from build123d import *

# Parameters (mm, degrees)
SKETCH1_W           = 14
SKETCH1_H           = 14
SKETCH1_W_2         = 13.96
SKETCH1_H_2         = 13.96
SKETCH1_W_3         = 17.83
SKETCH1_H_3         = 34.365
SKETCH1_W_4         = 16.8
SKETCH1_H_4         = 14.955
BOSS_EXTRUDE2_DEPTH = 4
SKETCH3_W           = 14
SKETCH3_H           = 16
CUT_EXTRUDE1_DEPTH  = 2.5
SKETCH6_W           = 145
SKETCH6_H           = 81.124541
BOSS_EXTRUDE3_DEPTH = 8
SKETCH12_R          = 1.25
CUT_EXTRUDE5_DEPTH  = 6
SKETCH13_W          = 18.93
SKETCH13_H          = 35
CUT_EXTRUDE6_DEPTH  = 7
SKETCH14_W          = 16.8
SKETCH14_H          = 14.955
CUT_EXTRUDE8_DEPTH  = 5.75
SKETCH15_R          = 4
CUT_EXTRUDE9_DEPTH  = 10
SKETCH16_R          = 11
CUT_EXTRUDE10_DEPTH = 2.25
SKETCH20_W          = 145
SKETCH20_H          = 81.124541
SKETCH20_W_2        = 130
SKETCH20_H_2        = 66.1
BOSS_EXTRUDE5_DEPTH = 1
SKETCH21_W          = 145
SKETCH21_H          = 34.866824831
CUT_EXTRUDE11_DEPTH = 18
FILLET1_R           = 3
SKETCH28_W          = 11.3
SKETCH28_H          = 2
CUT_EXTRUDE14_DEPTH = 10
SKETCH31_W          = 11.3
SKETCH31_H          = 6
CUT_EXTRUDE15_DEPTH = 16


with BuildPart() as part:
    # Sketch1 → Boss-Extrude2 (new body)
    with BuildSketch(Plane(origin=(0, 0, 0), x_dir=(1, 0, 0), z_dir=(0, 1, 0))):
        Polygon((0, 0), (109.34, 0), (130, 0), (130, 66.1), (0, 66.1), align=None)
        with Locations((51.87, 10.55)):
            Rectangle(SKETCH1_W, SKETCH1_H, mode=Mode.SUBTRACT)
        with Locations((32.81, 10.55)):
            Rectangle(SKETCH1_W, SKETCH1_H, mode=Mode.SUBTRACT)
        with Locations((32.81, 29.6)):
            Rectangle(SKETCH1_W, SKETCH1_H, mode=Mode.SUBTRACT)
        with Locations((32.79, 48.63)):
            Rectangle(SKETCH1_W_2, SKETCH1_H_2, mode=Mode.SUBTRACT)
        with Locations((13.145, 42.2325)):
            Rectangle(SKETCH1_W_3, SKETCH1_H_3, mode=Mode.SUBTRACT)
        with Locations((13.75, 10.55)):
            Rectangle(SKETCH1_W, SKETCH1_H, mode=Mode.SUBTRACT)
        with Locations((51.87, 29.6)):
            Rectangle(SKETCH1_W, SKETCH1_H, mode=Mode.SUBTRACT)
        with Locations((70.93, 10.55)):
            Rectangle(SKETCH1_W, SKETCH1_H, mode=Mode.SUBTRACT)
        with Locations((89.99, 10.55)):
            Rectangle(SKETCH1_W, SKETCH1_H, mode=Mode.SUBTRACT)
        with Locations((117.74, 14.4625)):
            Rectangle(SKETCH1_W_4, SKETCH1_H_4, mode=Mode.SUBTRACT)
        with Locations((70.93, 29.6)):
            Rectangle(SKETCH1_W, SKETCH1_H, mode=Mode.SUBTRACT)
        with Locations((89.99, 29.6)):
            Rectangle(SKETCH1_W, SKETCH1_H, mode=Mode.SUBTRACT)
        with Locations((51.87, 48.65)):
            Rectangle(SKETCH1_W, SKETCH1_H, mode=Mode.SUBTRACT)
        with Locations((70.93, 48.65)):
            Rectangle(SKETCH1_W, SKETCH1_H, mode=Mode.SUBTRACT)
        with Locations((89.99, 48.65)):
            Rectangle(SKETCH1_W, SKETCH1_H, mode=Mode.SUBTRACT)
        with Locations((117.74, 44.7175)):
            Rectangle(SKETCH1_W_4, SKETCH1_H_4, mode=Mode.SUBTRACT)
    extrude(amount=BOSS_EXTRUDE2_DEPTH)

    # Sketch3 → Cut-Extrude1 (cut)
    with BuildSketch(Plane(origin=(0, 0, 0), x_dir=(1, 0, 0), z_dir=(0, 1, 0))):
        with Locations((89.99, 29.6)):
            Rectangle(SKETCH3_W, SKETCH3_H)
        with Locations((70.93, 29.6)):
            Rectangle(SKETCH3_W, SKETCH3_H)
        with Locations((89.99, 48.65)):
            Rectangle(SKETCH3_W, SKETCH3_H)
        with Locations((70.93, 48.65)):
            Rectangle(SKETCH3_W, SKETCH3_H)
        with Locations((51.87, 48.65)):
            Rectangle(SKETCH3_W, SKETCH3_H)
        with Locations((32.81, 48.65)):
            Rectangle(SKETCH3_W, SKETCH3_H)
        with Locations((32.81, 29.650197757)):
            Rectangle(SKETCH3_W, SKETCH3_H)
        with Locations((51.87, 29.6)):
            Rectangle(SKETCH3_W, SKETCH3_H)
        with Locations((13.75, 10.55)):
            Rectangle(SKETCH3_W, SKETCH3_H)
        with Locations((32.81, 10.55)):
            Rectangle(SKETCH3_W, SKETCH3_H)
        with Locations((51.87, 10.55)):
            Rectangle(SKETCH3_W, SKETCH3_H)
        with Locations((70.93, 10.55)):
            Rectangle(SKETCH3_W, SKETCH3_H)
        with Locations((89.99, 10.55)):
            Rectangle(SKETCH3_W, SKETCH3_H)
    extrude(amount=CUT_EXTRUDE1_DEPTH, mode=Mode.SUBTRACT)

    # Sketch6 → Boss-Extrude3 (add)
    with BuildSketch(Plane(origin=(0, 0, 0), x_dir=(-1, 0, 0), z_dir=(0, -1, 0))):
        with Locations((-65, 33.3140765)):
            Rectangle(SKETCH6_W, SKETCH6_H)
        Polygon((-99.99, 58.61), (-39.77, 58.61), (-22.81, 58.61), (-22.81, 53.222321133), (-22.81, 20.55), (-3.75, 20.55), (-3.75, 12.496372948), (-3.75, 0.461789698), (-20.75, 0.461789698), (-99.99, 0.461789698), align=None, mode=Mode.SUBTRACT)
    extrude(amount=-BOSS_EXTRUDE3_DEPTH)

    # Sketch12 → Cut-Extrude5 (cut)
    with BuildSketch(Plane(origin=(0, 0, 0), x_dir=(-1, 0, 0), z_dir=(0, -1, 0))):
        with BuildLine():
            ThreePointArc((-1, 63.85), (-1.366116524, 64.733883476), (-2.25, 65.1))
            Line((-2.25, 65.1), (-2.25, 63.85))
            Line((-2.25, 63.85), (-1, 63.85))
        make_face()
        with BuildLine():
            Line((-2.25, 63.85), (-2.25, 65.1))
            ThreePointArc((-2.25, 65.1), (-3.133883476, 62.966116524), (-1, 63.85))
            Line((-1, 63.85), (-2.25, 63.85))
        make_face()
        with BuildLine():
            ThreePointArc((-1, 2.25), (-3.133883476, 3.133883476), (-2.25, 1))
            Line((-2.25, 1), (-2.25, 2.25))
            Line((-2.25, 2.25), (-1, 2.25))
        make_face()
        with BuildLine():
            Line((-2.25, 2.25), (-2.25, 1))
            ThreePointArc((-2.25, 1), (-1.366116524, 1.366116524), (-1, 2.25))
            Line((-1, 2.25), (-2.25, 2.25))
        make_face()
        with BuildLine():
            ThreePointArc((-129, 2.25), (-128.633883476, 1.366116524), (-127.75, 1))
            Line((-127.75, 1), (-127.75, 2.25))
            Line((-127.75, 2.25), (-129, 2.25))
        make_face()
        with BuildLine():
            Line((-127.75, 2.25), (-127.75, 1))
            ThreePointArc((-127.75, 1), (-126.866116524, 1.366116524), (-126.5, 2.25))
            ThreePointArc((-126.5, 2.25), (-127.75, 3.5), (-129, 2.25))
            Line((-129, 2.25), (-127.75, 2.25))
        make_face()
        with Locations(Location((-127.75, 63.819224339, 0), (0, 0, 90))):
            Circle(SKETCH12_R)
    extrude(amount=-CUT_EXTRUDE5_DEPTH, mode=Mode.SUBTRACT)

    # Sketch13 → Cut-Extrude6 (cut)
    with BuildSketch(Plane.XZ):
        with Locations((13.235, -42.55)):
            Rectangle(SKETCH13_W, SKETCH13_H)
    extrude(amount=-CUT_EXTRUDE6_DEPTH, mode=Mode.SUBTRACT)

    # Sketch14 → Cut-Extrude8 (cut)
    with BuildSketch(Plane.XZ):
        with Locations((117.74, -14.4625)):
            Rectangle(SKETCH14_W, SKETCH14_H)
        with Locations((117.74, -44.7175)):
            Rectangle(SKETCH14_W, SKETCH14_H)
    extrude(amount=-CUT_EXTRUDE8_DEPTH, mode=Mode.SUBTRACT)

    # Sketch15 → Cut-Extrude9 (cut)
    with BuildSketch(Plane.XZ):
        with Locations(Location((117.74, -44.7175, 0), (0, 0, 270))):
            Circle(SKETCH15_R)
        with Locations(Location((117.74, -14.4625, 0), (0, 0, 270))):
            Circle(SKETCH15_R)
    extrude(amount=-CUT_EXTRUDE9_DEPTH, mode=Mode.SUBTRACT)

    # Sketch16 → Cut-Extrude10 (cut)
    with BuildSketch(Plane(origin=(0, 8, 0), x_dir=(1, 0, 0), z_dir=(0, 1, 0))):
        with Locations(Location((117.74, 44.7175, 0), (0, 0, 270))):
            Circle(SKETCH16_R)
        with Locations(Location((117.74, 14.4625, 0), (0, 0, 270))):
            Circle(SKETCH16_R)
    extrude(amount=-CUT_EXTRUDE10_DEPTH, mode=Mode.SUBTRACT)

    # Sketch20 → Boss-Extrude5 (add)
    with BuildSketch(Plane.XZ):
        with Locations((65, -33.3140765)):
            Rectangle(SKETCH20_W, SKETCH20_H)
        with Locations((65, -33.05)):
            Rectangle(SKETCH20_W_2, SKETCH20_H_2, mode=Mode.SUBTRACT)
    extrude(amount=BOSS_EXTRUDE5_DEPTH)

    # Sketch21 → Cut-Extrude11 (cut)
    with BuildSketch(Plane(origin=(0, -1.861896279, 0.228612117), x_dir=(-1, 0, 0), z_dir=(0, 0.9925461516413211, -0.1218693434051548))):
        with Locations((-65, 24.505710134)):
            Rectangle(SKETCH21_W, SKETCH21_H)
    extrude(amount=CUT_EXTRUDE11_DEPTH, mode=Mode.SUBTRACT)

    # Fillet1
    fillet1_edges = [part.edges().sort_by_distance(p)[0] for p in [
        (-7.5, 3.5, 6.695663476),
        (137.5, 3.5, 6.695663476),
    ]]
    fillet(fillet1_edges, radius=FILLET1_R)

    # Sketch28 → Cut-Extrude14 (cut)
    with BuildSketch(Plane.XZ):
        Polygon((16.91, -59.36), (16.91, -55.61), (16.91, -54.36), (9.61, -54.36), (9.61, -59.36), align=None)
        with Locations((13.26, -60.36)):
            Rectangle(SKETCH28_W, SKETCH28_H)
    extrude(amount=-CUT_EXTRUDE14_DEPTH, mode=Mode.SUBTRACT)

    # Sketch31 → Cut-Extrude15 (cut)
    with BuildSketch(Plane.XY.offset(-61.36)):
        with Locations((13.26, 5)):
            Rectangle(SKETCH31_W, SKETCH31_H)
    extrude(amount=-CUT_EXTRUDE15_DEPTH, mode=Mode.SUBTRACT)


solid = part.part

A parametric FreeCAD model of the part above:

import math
import FreeCAD as App
import Part
import Sketcher

V = App.Vector
Q = App.Units.Quantity


def edges_at(feature, points):
    """Names of the edges that pass closest to the given points."""
    edges = feature.Shape.Edges
    near = lambda p: min(range(len(edges)), key=lambda i: edges[i].distToShape(Part.Vertex(*p))[0])
    return sorted({f"Edge{near(p) + 1}" for p in points})


def add_polygon(sketch, points):
    """Adds a closed chain of lines whose ends are joined by coincident constraints."""
    first, n = sketch.GeometryCount, len(points)
    for a, b in zip(points, points[1:] + points[:1]):
        sketch.addGeometry(Part.LineSegment(App.Vector(*a, 0), App.Vector(*b, 0)), False)
    for i in range(n):
        sketch.addConstraint(Sketcher.Constraint("Coincident", first + i, 2, first + (i + 1) % n, 1))

doc = App.newDocument("Part")
body = doc.addObject("PartDesign::Body", "Body")

sketch1 = body.newObject("Sketcher::SketchObject", "Sketch")
sketch1.AttachmentSupport = (doc.getObject("XZ_Plane"), [""])
sketch1.MapMode = "FlatFace"
add_polygon(sketch1, [(0, 0), (130, 0), (130, -66), (0, -66)])
add_polygon(sketch1, [(21, -4), (7, -4), (7, -18), (21, -18)])
add_polygon(sketch1, [(40, -4), (26, -4), (26, -18), (40, -18)])
add_polygon(sketch1, [(59, -4), (45, -4), (45, -18), (59, -18)])
add_polygon(sketch1, [(40, -23), (26, -23), (26, -37), (40, -37)])
add_polygon(sketch1, [(59, -23), (45, -23), (45, -37), (59, -37)])
add_polygon(sketch1, [(78, -4), (64, -4), (64, -18), (78, -18)])
add_polygon(sketch1, [(97, -4), (83, -4), (83, -18), (97, -18)])
add_polygon(sketch1, [(126, -7), (109, -7), (109, -22), (126, -22)])
add_polygon(sketch1, [(78, -23), (64, -23), (64, -37), (78, -37)])
add_polygon(sketch1, [(97, -23), (83, -23), (83, -37), (97, -37)])
add_polygon(sketch1, [(22, -25), (4, -25), (4, -59), (22, -59)])
add_polygon(sketch1, [(40, -42), (26, -42), (26, -56), (40, -56)])
add_polygon(sketch1, [(59, -42), (45, -42), (45, -56), (59, -56)])
add_polygon(sketch1, [(126, -37), (109, -37), (109, -52), (126, -52)])
add_polygon(sketch1, [(78, -42), (64, -42), (64, -56), (78, -56)])
add_polygon(sketch1, [(97, -42), (83, -42), (83, -56), (97, -56)])
sketch1.addConstraint([
    Sketcher.Constraint("Horizontal", 0),
    Sketcher.Constraint("Vertical", 1),
    Sketcher.Constraint("Horizontal", 2),
    Sketcher.Constraint("Vertical", 3),
    Sketcher.Constraint("Horizontal", 4),
    Sketcher.Constraint("Vertical", 5),
    Sketcher.Constraint("Horizontal", 6),
    Sketcher.Constraint("Vertical", 7),
    Sketcher.Constraint("Horizontal", 8),
    Sketcher.Constraint("Vertical", 9),
    Sketcher.Constraint("Horizontal", 10),
    Sketcher.Constraint("Vertical", 11),
    Sketcher.Constraint("Horizontal", 12),
    Sketcher.Constraint("Vertical", 13),
    Sketcher.Constraint("Horizontal", 14),
    Sketcher.Constraint("Vertical", 15),
    Sketcher.Constraint("Horizontal", 16),
    Sketcher.Constraint("Vertical", 17),
    Sketcher.Constraint("Horizontal", 18),
    Sketcher.Constraint("Vertical", 19),
    Sketcher.Constraint("Horizontal", 20),
    Sketcher.Constraint("Vertical", 21),
    Sketcher.Constraint("Horizontal", 22),
    Sketcher.Constraint("Vertical", 23),
    Sketcher.Constraint("Horizontal", 24),
    Sketcher.Constraint("Vertical", 25),
    Sketcher.Constraint("Horizontal", 26),
    Sketcher.Constraint("Vertical", 27),
    Sketcher.Constraint("Horizontal", 28),
    Sketcher.Constraint("Vertical", 29),
    Sketcher.Constraint("Horizontal", 30),
    Sketcher.Constraint("Vertical", 31),
    Sketcher.Constraint("Horizontal", 32),
    Sketcher.Constraint("Vertical", 33),
    Sketcher.Constraint("Horizontal", 34),
    Sketcher.Constraint("Vertical", 35),
    Sketcher.Constraint("Horizontal", 36),
    Sketcher.Constraint("Vertical", 37),
    Sketcher.Constraint("Horizontal", 38),
    Sketcher.Constraint("Vertical", 39),
    Sketcher.Constraint("Horizontal", 40),
    Sketcher.Constraint("Vertical", 41),
    Sketcher.Constraint("Horizontal", 42),
    Sketcher.Constraint("Vertical", 43),
    Sketcher.Constraint("Horizontal", 44),
    Sketcher.Constraint("Vertical", 45),
    Sketcher.Constraint("Horizontal", 46),
    Sketcher.Constraint("Vertical", 47),
    Sketcher.Constraint("Horizontal", 48),
    Sketcher.Constraint("Vertical", 49),
    Sketcher.Constraint("Horizontal", 50),
    Sketcher.Constraint("Vertical", 51),
    Sketcher.Constraint("Horizontal", 52),
    Sketcher.Constraint("Vertical", 53),
    Sketcher.Constraint("Horizontal", 54),
    Sketcher.Constraint("Vertical", 55),
    Sketcher.Constraint("Horizontal", 56),
    Sketcher.Constraint("Vertical", 57),
    Sketcher.Constraint("Horizontal", 58),
    Sketcher.Constraint("Vertical", 59),
    Sketcher.Constraint("Horizontal", 60),
    Sketcher.Constraint("Vertical", 61),
    Sketcher.Constraint("Horizontal", 62),
    Sketcher.Constraint("Vertical", 63),
    Sketcher.Constraint("Horizontal", 64),
    Sketcher.Constraint("Vertical", 65),
    Sketcher.Constraint("Horizontal", 66),
    Sketcher.Constraint("Vertical", 67),
    Sketcher.Constraint("Coincident", 3, 2, -1, 1),
    Sketcher.Constraint("Horizontal", 7, 2, 8, 2),
    Sketcher.Constraint("Horizontal", 6, 2, 9, 2),
    Sketcher.Constraint("Horizontal", 11, 2, 12, 2),
    Sketcher.Constraint("Horizontal", 10, 2, 13, 2),
    Sketcher.Constraint("Horizontal", 19, 2, 20, 2),
    Sketcher.Constraint("Horizontal", 18, 2, 21, 2),
    Sketcher.Constraint("Horizontal", 15, 2, 24, 2),
    Sketcher.Constraint("Horizontal", 14, 2, 25, 2),
    Sketcher.Constraint("Horizontal", 27, 2, 28, 2),
    Sketcher.Constraint("Horizontal", 26, 2, 29, 2),
    Sketcher.Constraint("Horizontal", 23, 2, 36, 2),
    Sketcher.Constraint("Horizontal", 22, 2, 37, 2),
    Sketcher.Constraint("Horizontal", 39, 2, 40, 2),
    Sketcher.Constraint("Horizontal", 38, 2, 41, 2),
    Sketcher.Constraint("Horizontal", 51, 2, 52, 2),
    Sketcher.Constraint("Horizontal", 55, 2, 60, 2),
    Sketcher.Constraint("Horizontal", 54, 2, 61, 2),
    Sketcher.Constraint("Horizontal", 63, 2, 64, 2),
    Sketcher.Constraint("Horizontal", 62, 2, 65, 2),
    Sketcher.Constraint("Vertical", 9, 2, 16, 2),
    Sketcher.Constraint("Vertical", 11, 2, 18, 2),
    Sketcher.Constraint("Vertical", 13, 2, 20, 2),
    Sketcher.Constraint("Vertical", 15, 2, 22, 2),
    Sketcher.Constraint("Vertical", 25, 2, 36, 2),
    Sketcher.Constraint("Vertical", 27, 2, 38, 2),
    Sketcher.Constraint("Vertical", 29, 2, 40, 2),
    Sketcher.Constraint("Vertical", 31, 2, 42, 2),
    Sketcher.Constraint("Vertical", 17, 2, 48, 2),
    Sketcher.Constraint("Vertical", 21, 2, 52, 2),
    Sketcher.Constraint("Vertical", 23, 2, 54, 2),
    Sketcher.Constraint("Vertical", 33, 2, 56, 2),
    Sketcher.Constraint("Vertical", 35, 2, 58, 2),
    Sketcher.Constraint("Vertical", 37, 2, 60, 2),
    Sketcher.Constraint("Vertical", 39, 2, 62, 2),
    Sketcher.Constraint("Vertical", 41, 2, 64, 2),
    Sketcher.Constraint("Vertical", 43, 2, 66, 2),
    Sketcher.Constraint("Equal", 6, 8),
    Sketcher.Constraint("Equal", 10, 12),
    Sketcher.Constraint("Equal", 22, 24),
    Sketcher.Constraint("Equal", 26, 28),
    Sketcher.Constraint("Equal", 66, 5),
    Sketcher.Constraint("Equal", 15, 17),
    Sketcher.Constraint("Equal", 50, 49),
    Sketcher.Constraint("Equal", 43, 53),
    Sketcher.Constraint("Equal", 35, 57),
    Sketcher.Constraint("DistanceX", 0, 1, 0, 2, Q("130 mm")),
    Sketcher.Constraint("DistanceX", 4, 2, 4, 1, Q("14 mm")),
    Sketcher.Constraint("DistanceX", 32, 2, 32, 1, Q("16.8 mm")),
    Sketcher.Constraint("DistanceY", 1, 2, 1, 1, Q("66.1 mm")),
    Sketcher.Constraint("DistanceX", 44, 2, 44, 1, Q("17.83 mm")),
    Sketcher.Constraint("DistanceX", 48, 2, 48, 1, Q("13.96 mm")),
    Sketcher.Constraint("DistanceY", 16, 2, -1, 1, Q("22.6 mm")),
    Sketcher.Constraint("DistanceY", 33, 2, 33, 1, Q("14.955 mm")),
    Sketcher.Constraint("DistanceY", 45, 2, 45, 1, Q("34.365 mm")),
    Sketcher.Constraint("DistanceX", -1, 1, 4, 2, Q("6.75 mm")),
    Sketcher.Constraint("DistanceY", 4, 2, -1, 1, Q("3.55 mm")),
    Sketcher.Constraint("DistanceX", -1, 1, 8, 2, Q("25.81 mm")),
    Sketcher.Constraint("DistanceX", -1, 1, 12, 2, Q("44.87 mm")),
    Sketcher.Constraint("DistanceX", -1, 1, 24, 2, Q("63.93 mm")),
    Sketcher.Constraint("DistanceX", -1, 1, 28, 2, Q("82.99 mm")),
    Sketcher.Constraint("DistanceX", -1, 1, 32, 2, Q("109.34 mm")),
    Sketcher.Constraint("DistanceY", 33, 2, -1, 1, Q("21.94 mm")),
    Sketcher.Constraint("DistanceX", -1, 1, 44, 2, Q("4.23 mm")),
    Sketcher.Constraint("DistanceY", 44, 2, -1, 1, Q("25.05 mm")),
    Sketcher.Constraint("DistanceY", 48, 2, -1, 1, Q("41.65 mm")),
    Sketcher.Constraint("DistanceY", 56, 2, -1, 1, Q("37.24 mm")),
])
pad1 = body.newObject("PartDesign::Pad", "Pad")
pad1.Profile = sketch1
pad1.Length = 4
pad1.Reversed = True

sketch2 = body.newObject("Sketcher::SketchObject", "Sketch001")
sketch2.AttachmentSupport = (doc.getObject("XZ_Plane"), [""])
sketch2.MapMode = "FlatFace"
add_polygon(sketch2, [(83, -38), (83, -22), (97, -22), (97, -38)])
add_polygon(sketch2, [(64, -38), (64, -22), (78, -22), (78, -38)])
add_polygon(sketch2, [(83, -57), (83, -41), (97, -41), (97, -57)])
add_polygon(sketch2, [(64, -57), (64, -41), (78, -41), (78, -57)])
add_polygon(sketch2, [(45, -57), (45, -41), (59, -41), (59, -57)])
add_polygon(sketch2, [(26, -57), (26, -41), (40, -41), (40, -57)])
add_polygon(sketch2, [(26, -38), (26, -22), (40, -22), (40, -38)])
add_polygon(sketch2, [(45, -38), (45, -22), (59, -22), (59, -38)])
add_polygon(sketch2, [(7, -19), (7, -3), (21, -3), (21, -19)])
add_polygon(sketch2, [(26, -19), (26, -3), (40, -3), (40, -19)])
add_polygon(sketch2, [(45, -19), (45, -3), (59, -3), (59, -19)])
add_polygon(sketch2, [(64, -19), (64, -3), (78, -3), (78, -19)])
add_polygon(sketch2, [(83, -19), (83, -3), (97, -3), (97, -19)])
sketch2.addConstraint([
    Sketcher.Constraint("Vertical", 0),
    Sketcher.Constraint("Horizontal", 1),
    Sketcher.Constraint("Vertical", 2),
    Sketcher.Constraint("Horizontal", 3),
    Sketcher.Constraint("Vertical", 4),
    Sketcher.Constraint("Horizontal", 5),
    Sketcher.Constraint("Vertical", 6),
    Sketcher.Constraint("Horizontal", 7),
    Sketcher.Constraint("Vertical", 8),
    Sketcher.Constraint("Horizontal", 9),
    Sketcher.Constraint("Vertical", 10),
    Sketcher.Constraint("Horizontal", 11),
    Sketcher.Constraint("Vertical", 12),
    Sketcher.Constraint("Horizontal", 13),
    Sketcher.Constraint("Vertical", 14),
    Sketcher.Constraint("Horizontal", 15),
    Sketcher.Constraint("Vertical", 16),
    Sketcher.Constraint("Horizontal", 17),
    Sketcher.Constraint("Vertical", 18),
    Sketcher.Constraint("Horizontal", 19),
    Sketcher.Constraint("Vertical", 20),
    Sketcher.Constraint("Horizontal", 21),
    Sketcher.Constraint("Vertical", 22),
    Sketcher.Constraint("Horizontal", 23),
    Sketcher.Constraint("Vertical", 24),
    Sketcher.Constraint("Horizontal", 25),
    Sketcher.Constraint("Vertical", 26),
    Sketcher.Constraint("Horizontal", 27),
    Sketcher.Constraint("Vertical", 28),
    Sketcher.Constraint("Horizontal", 29),
    Sketcher.Constraint("Vertical", 30),
    Sketcher.Constraint("Horizontal", 31),
    Sketcher.Constraint("Vertical", 32),
    Sketcher.Constraint("Horizontal", 33),
    Sketcher.Constraint("Vertical", 34),
    Sketcher.Constraint("Horizontal", 35),
    Sketcher.Constraint("Vertical", 36),
    Sketcher.Constraint("Horizontal", 37),
    Sketcher.Constraint("Vertical", 38),
    Sketcher.Constraint("Horizontal", 39),
    Sketcher.Constraint("Vertical", 40),
    Sketcher.Constraint("Horizontal", 41),
    Sketcher.Constraint("Vertical", 42),
    Sketcher.Constraint("Horizontal", 43),
    Sketcher.Constraint("Vertical", 44),
    Sketcher.Constraint("Horizontal", 45),
    Sketcher.Constraint("Vertical", 46),
    Sketcher.Constraint("Horizontal", 47),
    Sketcher.Constraint("Vertical", 48),
    Sketcher.Constraint("Horizontal", 49),
    Sketcher.Constraint("Vertical", 50),
    Sketcher.Constraint("Horizontal", 51),
    Sketcher.Constraint("Horizontal", 1, 2, 4, 2),
    Sketcher.Constraint("Horizontal", 3, 2, 6, 2),
    Sketcher.Constraint("Horizontal", 9, 2, 12, 2),
    Sketcher.Constraint("Horizontal", 11, 2, 14, 2),
    Sketcher.Constraint("Horizontal", 13, 2, 16, 2),
    Sketcher.Constraint("Horizontal", 15, 2, 18, 2),
    Sketcher.Constraint("Horizontal", 17, 2, 20, 2),
    Sketcher.Constraint("Horizontal", 19, 2, 22, 2),
    Sketcher.Constraint("Horizontal", 5, 2, 28, 2),
    Sketcher.Constraint("Horizontal", 7, 2, 30, 2),
    Sketcher.Constraint("Horizontal", 33, 2, 36, 2),
    Sketcher.Constraint("Horizontal", 35, 2, 38, 2),
    Sketcher.Constraint("Horizontal", 37, 2, 40, 2),
    Sketcher.Constraint("Horizontal", 39, 2, 42, 2),
    Sketcher.Constraint("Horizontal", 41, 2, 44, 2),
    Sketcher.Constraint("Horizontal", 43, 2, 46, 2),
    Sketcher.Constraint("Horizontal", 45, 2, 48, 2),
    Sketcher.Constraint("Horizontal", 47, 2, 50, 2),
    Sketcher.Constraint("Vertical", 3, 2, 8, 2),
    Sketcher.Constraint("Vertical", 2, 2, 9, 2),
    Sketcher.Constraint("Vertical", 7, 2, 12, 2),
    Sketcher.Constraint("Vertical", 6, 2, 13, 2),
    Sketcher.Constraint("Vertical", 23, 2, 24, 2),
    Sketcher.Constraint("Vertical", 22, 2, 25, 2),
    Sketcher.Constraint("Vertical", 19, 2, 28, 2),
    Sketcher.Constraint("Vertical", 18, 2, 29, 2),
    Sketcher.Constraint("Vertical", 27, 2, 36, 2),
    Sketcher.Constraint("Vertical", 26, 2, 37, 2),
    Sketcher.Constraint("Vertical", 31, 2, 40, 2),
    Sketcher.Constraint("Vertical", 30, 2, 41, 2),
    Sketcher.Constraint("Vertical", 15, 2, 44, 2),
    Sketcher.Constraint("Vertical", 14, 2, 45, 2),
    Sketcher.Constraint("Vertical", 11, 2, 48, 2),
    Sketcher.Constraint("Vertical", 10, 2, 49, 2),
    Sketcher.Constraint("Equal", 3, 5),
    Sketcher.Constraint("Equal", 15, 17),
    Sketcher.Constraint("Equal", 19, 21),
    Sketcher.Constraint("Equal", 31, 33),
    Sketcher.Constraint("Equal", 6, 8),
    Sketcher.Constraint("Equal", 22, 24),
    Sketcher.Constraint("Equal", 30, 32),
    Sketcher.Constraint("DistanceX", 1, 1, 1, 2, Q("14 mm")),
    Sketcher.Constraint("DistanceY", 0, 1, 0, 2, Q("16 mm")),
    Sketcher.Constraint("DistanceY", 0, 2, -1, 1, Q("21.6 mm")),
    Sketcher.Constraint("DistanceY", 20, 2, 32, 2, Q("38.1 mm")),
    Sketcher.Constraint("DistanceX", -1, 1, 0, 2, Q("82.99 mm")),
    Sketcher.Constraint("DistanceX", -1, 1, 4, 2, Q("63.93 mm")),
    Sketcher.Constraint("DistanceY", 8, 2, -1, 1, Q("40.65 mm")),
    Sketcher.Constraint("DistanceX", -1, 1, 16, 2, Q("44.87 mm")),
    Sketcher.Constraint("DistanceX", -1, 1, 20, 2, Q("25.81 mm")),
    Sketcher.Constraint("DistanceX", -1, 1, 32, 2, Q("6.75 mm")),
    Sketcher.Constraint("DistanceY", 24, 2, -1, 1, Q("21.650198 mm")),
])
pocket1 = body.newObject("PartDesign::Pocket", "Pocket")
pocket1.Profile = sketch2
pocket1.Length = 2.5

sketch3 = body.newObject("Sketcher::SketchObject", "Sketch002")
sketch3.AttachmentSupport = (doc.getObject("XZ_Plane"), [""])
sketch3.MapMode = "FlatFace"
add_polygon(sketch3, [(138, -74), (138, 7), (-8, 7), (-8, -74)])
add_polygon(sketch3, [(100, 0), (100, -59), (23, -59), (23, -21), (4, -21), (4, 0)])
sketch3.addConstraint([
    Sketcher.Constraint("Vertical", 0),
    Sketcher.Constraint("Horizontal", 1),
    Sketcher.Constraint("Vertical", 2),
    Sketcher.Constraint("Horizontal", 3),
    Sketcher.Constraint("Vertical", 4),
    Sketcher.Constraint("Horizontal", 5),
    Sketcher.Constraint("Vertical", 6),
    Sketcher.Constraint("Horizontal", 7),
    Sketcher.Constraint("Vertical", 8),
    Sketcher.Constraint("Horizontal", 9),
    Sketcher.Constraint("DistanceX", 1, 2, 1, 1, Q("145 mm")),
    Sketcher.Constraint("DistanceX", 5, 2, 5, 1, Q("77.18 mm")),
    Sketcher.Constraint("DistanceX", 7, 2, 7, 1, Q("19.06 mm")),
    Sketcher.Constraint("DistanceY", 6, 1, 6, 2, Q("38.06 mm")),
    Sketcher.Constraint("DistanceX", -1, 1, 0, 2, Q("137.5 mm")),
    Sketcher.Constraint("DistanceX", -1, 1, 4, 2, Q("99.99 mm")),
    Sketcher.Constraint("DistanceY", 4, 2, -1, 1, Q("58.61 mm")),
    Sketcher.Constraint("DistanceY", 0, 1, 0, 2, Q("81.124541 mm")),
    Sketcher.Constraint("DistanceY", 4, 2, 4, 1, Q("58.14821 mm")),
    Sketcher.Constraint("DistanceY", -1, 1, 0, 2, Q("7.248194 mm")),
])
pad2 = body.newObject("PartDesign::Pad", "Pad001")
pad2.Profile = sketch3
pad2.Length = 8
pad2.Reversed = True

sketch4 = body.newObject("Sketcher::SketchObject", "Sketch003")
sketch4.AttachmentSupport = (doc.getObject("XZ_Plane"), [""])
sketch4.MapMode = "FlatFace"
sketch4.addGeometry([
    Part.ArcOfCircle(Part.Circle(V(2.3, -63.8, 0), V(0, 0, 1), 1.3), math.radians(-180), math.radians(-90)),
    Part.ArcOfCircle(Part.Circle(V(2.2, -63.9, 0), V(0, 0, 1), 1.2), math.radians(-90), math.radians(180)),
    Part.ArcOfCircle(Part.Circle(V(2.2, -2.2, 0), V(0, 0, 1), 1.2), math.radians(180), math.radians(450)),
    Part.ArcOfCircle(Part.Circle(V(2.3, -2.3, 0), V(0, 0, 1), 1.3), math.radians(90), math.radians(180)),
    Part.ArcOfCircle(Part.Circle(V(127.7, -2.3, 0), V(0, 0, 1), 1.3), math.radians(0), math.radians(90)),
    Part.ArcOfCircle(Part.Circle(V(127.8, -2.3, 0), V(0, 0, 1), 1.3), math.radians(90), math.radians(180)),
    Part.ArcOfCircle(Part.Circle(V(127.8, -2.2, 0), V(0, 0, 1), 1.2), math.radians(180), math.radians(360)),
    Part.Circle(V(127.8, -63.8, 0), V(0, 0, 1), 1.2),
], False)
sketch4.addConstraint([
    Sketcher.Constraint("Tangent", 0, 1, 1, 2),
    Sketcher.Constraint("Coincident", 1, 1, 0, 2),
    Sketcher.Constraint("Tangent", 2, 1, 3, 2),
    Sketcher.Constraint("Coincident", 3, 1, 2, 2),
    Sketcher.Constraint("Tangent", 4, 2, 5, 1),
    Sketcher.Constraint("Tangent", 5, 2, 6, 1),
    Sketcher.Constraint("Tangent", 6, 2, 4, 1),
    Sketcher.Constraint("Equal", 1, 2),
    Sketcher.Constraint("Equal", 3, 4),
    Sketcher.Constraint("Equal", 6, 7),
    Sketcher.Constraint("Horizontal", 3, 3, 4, 3),
    Sketcher.Constraint("Horizontal", 1, 3, 0, 1),
    Sketcher.Constraint("Horizontal", 6, 3, 2, 1),
    Sketcher.Constraint("Horizontal", 2, 1, 5, 2),
    Sketcher.Constraint("Horizontal", 5, 2, 6, 2),
    Sketcher.Constraint("Vertical", 1, 3, 2, 3),
    Sketcher.Constraint("Vertical", 6, 3, 7, 3),
    Sketcher.Constraint("Vertical", 3, 3, 1, 1),
    Sketcher.Constraint("Vertical", 1, 1, 3, 1),
    Sketcher.Constraint("Vertical", 7, 3, 4, 2),
    Sketcher.Constraint("Diameter", 7, Q("2.5 mm")),
    Sketcher.Constraint("DistanceX", -1, 1, 0, 1, Q("1 mm")),
    Sketcher.Constraint("DistanceY", 3, 1, -1, 1, Q("1 mm")),
    Sketcher.Constraint("DistanceX", -1, 1, 6, 2, Q("129 mm")),
    Sketcher.Constraint("DistanceY", 1, 1, -1, 1, Q("65.1 mm")),
    Sketcher.Constraint("DistanceY", 7, 3, -1, 1, Q("63.819224 mm")),
])
pocket2 = body.newObject("PartDesign::Pocket", "Pocket001")
pocket2.Profile = sketch4
pocket2.Length = 6

sketch5 = body.newObject("Sketcher::SketchObject", "Sketch004")
sketch5.AttachmentSupport = (doc.getObject("XZ_Plane"), [""])
sketch5.MapMode = "FlatFace"
add_polygon(sketch5, [(4, -25), (4, -60), (23, -60), (23, -25)])
sketch5.addConstraint([
    Sketcher.Constraint("Vertical", 0),
    Sketcher.Constraint("Horizontal", 1),
    Sketcher.Constraint("Vertical", 2),
    Sketcher.Constraint("Horizontal", 3),
    Sketcher.Constraint("DistanceY", 0, 2, 0, 1, Q("35 mm")),
    Sketcher.Constraint("DistanceX", 1, 1, 1, 2, Q("18.93 mm")),
    Sketcher.Constraint("DistanceX", -1, 1, 1, 2, Q("22.7 mm")),
    Sketcher.Constraint("DistanceY", 0, 2, -1, 1, Q("60.05 mm")),
])
pocket3 = body.newObject("PartDesign::Pocket", "Pocket002")
pocket3.Profile = sketch5
pocket3.Length = 7

sketch6 = body.newObject("Sketcher::SketchObject", "Sketch005")
sketch6.AttachmentSupport = (doc.getObject("XZ_Plane"), [""])
sketch6.MapMode = "FlatFace"
add_polygon(sketch6, [(109, -7), (109, -22), (126, -22), (126, -7)])
add_polygon(sketch6, [(109, -37), (109, -52), (126, -52), (126, -37)])
sketch6.addConstraint([
    Sketcher.Constraint("Vertical", 0),
    Sketcher.Constraint("Horizontal", 1),
    Sketcher.Constraint("Vertical", 2),
    Sketcher.Constraint("Horizontal", 3),
    Sketcher.Constraint("Vertical", 4),
    Sketcher.Constraint("Horizontal", 5),
    Sketcher.Constraint("Vertical", 6),
    Sketcher.Constraint("Horizontal", 7),
    Sketcher.Constraint("Vertical", 3, 2, 4, 2),
    Sketcher.Constraint("Vertical", 2, 2, 5, 2),
    Sketcher.Constraint("Equal", 2, 4),
    Sketcher.Constraint("DistanceX", 1, 1, 1, 2, Q("16.8 mm")),
    Sketcher.Constraint("DistanceY", 6, 2, 1, 2, Q("15.3 mm")),
    Sketcher.Constraint("DistanceY", 0, 2, 0, 1, Q("14.955 mm")),
    Sketcher.Constraint("DistanceX", -1, 1, 0, 2, Q("109.34 mm")),
    Sketcher.Constraint("DistanceY", 0, 2, -1, 1, Q("21.94 mm")),
])
pocket4 = body.newObject("PartDesign::Pocket", "Pocket003")
pocket4.Profile = sketch6
pocket4.Length = 5.75

sketch7 = body.newObject("Sketcher::SketchObject", "Sketch006")
sketch7.AttachmentSupport = (doc.getObject("XZ_Plane"), [""])
sketch7.MapMode = "FlatFace"
sketch7.addGeometry([
    Part.Circle(V(117.7, -44.7, 0), V(0, 0, 1), 4),
    Part.Circle(V(117.7, -14.5, 0), V(0, 0, 1), 4),
], False)
sketch7.addConstraint([
    Sketcher.Constraint("Equal", 0, 1),
    Sketcher.Constraint("Vertical", 0, 3, 1, 3),
    Sketcher.Constraint("Diameter", 0, Q("8 mm")),
    Sketcher.Constraint("DistanceX", -1, 1, 0, 3, Q("117.74 mm")),
    Sketcher.Constraint("DistanceY", 0, 3, 1, 3, Q("30.255 mm")),
    Sketcher.Constraint("DistanceY", 0, 3, -1, 1, Q("44.7175 mm")),
])
pocket5 = body.newObject("PartDesign::Pocket", "Pocket004")
pocket5.Profile = sketch7
pocket5.Length = 10

sketch8 = body.newObject("Sketcher::SketchObject", "Sketch007")
sketch8.AttachmentSupport = (doc.getObject("XZ_Plane"), [""])
sketch8.MapMode = "FlatFace"
sketch8.AttachmentOffset = App.Placement(V(0, 0, -8), App.Rotation())
sketch8.addGeometry([
    Part.Circle(V(118, -45, 0), V(0, 0, 1), 11),
    Part.Circle(V(118, -14, 0), V(0, 0, 1), 11),
], False)
sketch8.addConstraint([
    Sketcher.Constraint("Equal", 0, 1),
    Sketcher.Constraint("Vertical", 0, 3, 1, 3),
    Sketcher.Constraint("Diameter", 0, Q("22 mm")),
    Sketcher.Constraint("DistanceX", -1, 1, 0, 3, Q("117.74 mm")),
    Sketcher.Constraint("DistanceY", 0, 3, 1, 3, Q("30.255 mm")),
    Sketcher.Constraint("DistanceY", 0, 3, -1, 1, Q("44.7175 mm")),
])
pocket6 = body.newObject("PartDesign::Pocket", "Pocket005")
pocket6.Profile = sketch8
pocket6.Length = 2.25
pocket6.Reversed = True

sketch9 = body.newObject("Sketcher::SketchObject", "Sketch008")
sketch9.AttachmentSupport = (doc.getObject("XZ_Plane"), [""])
sketch9.MapMode = "FlatFace"
add_polygon(sketch9, [(-8, 7), (-8, -74), (138, -74), (138, 7)])
add_polygon(sketch9, [(130, -66), (0, -66), (0, 0), (130, 0)])
sketch9.addConstraint([
    Sketcher.Constraint("Vertical", 0),
    Sketcher.Constraint("Horizontal", 1),
    Sketcher.Constraint("Vertical", 2),
    Sketcher.Constraint("Horizontal", 3),
    Sketcher.Constraint("Horizontal", 4),
    Sketcher.Constraint("Vertical", 5),
    Sketcher.Constraint("Horizontal", 6),
    Sketcher.Constraint("Vertical", 7),
    Sketcher.Constraint("Coincident", 5, 2, -1, 1),
    Sketcher.Constraint("DistanceX", 1, 1, 1, 2, Q("145 mm")),
    Sketcher.Constraint("DistanceX", 4, 2, 4, 1, Q("130 mm")),
    Sketcher.Constraint("DistanceY", 5, 1, 5, 2, Q("66.1 mm")),
    Sketcher.Constraint("DistanceX", 0, 2, -1, 1, Q("7.5 mm")),
    Sketcher.Constraint("DistanceY", 0, 2, 0, 1, Q("81.124541 mm")),
    Sketcher.Constraint("DistanceY", 0, 2, -1, 1, Q("73.876347 mm")),
])
pad3 = body.newObject("PartDesign::Pad", "Pad002")
pad3.Profile = sketch9
pad3.Length = 1

sketch10 = body.newObject("Sketcher::SketchObject", "Sketch009")
sketch10.Placement = App.Placement(V(0, -1.861896, 0.228612), App.Rotation(V(-1, 0, 0), V(0, 0.121869343, 0.992546152), V(0, 0.992546152, -0.121869343), "ZXY"))
add_polygon(sketch10, [(-138, 42), (-138, 7), (8, 7), (8, 42)])
sketch10.addConstraint([
    Sketcher.Constraint("Vertical", 0),
    Sketcher.Constraint("Horizontal", 1),
    Sketcher.Constraint("Vertical", 2),
    Sketcher.Constraint("Horizontal", 3),
    Sketcher.Constraint("DistanceX", 1, 1, 1, 2, Q("145 mm")),
    Sketcher.Constraint("DistanceX", 0, 2, -1, 1, Q("137.5 mm")),
    Sketcher.Constraint("DistanceY", 0, 2, 0, 1, Q("34.866825 mm")),
    Sketcher.Constraint("DistanceY", -1, 1, 0, 2, Q("7.072298 mm")),
])
pocket7 = body.newObject("PartDesign::Pocket", "Pocket006")
pocket7.Profile = sketch10
pocket7.Length = 18
pocket7.Reversed = True
doc.recompute()

fillet = body.newObject("PartDesign::Fillet", "Fillet")
fillet.Base = (pocket7, edges_at(pocket7, [(-7.5, 3.5, 6.696), (137.5, 3.5, 6.696)]))
fillet.Radius = 3

sketch11 = body.newObject("Sketcher::SketchObject", "Sketch010")
sketch11.AttachmentSupport = (doc.getObject("XZ_Plane"), [""])
sketch11.MapMode = "FlatFace"
add_polygon(sketch11, [(16.9, -59.4), (16.9, -54.4), (9.6, -54.4), (9.6, -59.4), (7.6, -59.4), (7.6, -61.4), (18.9, -61.4), (18.9, -59.4)])
sketch11.addConstraint([
    Sketcher.Constraint("Vertical", 0),
    Sketcher.Constraint("Horizontal", 1),
    Sketcher.Constraint("Vertical", 2),
    Sketcher.Constraint("Horizontal", 3),
    Sketcher.Constraint("Vertical", 4),
    Sketcher.Constraint("Horizontal", 5),
    Sketcher.Constraint("Vertical", 6),
    Sketcher.Constraint("Horizontal", 7),
    Sketcher.Constraint("Horizontal", 3, 2, 6, 2),
    Sketcher.Constraint("Equal", 3, 7),
    Sketcher.Constraint("Equal", 7, 4),
    Sketcher.Constraint("DistanceX", 3, 2, 3, 1, Q("2 mm")),
    Sketcher.Constraint("DistanceY", 0, 1, 0, 2, Q("5 mm")),
    Sketcher.Constraint("DistanceX", 1, 2, 1, 1, Q("7.3 mm")),
    Sketcher.Constraint("DistanceX", -1, 1, 0, 2, Q("16.91 mm")),
    Sketcher.Constraint("DistanceY", 0, 2, -1, 1, Q("54.36 mm")),
])
pocket8 = body.newObject("PartDesign::Pocket", "Pocket007")
pocket8.Profile = sketch11
pocket8.Length = 10

sketch12 = body.newObject("Sketcher::SketchObject", "Sketch011")
sketch12.AttachmentSupport = (doc.getObject("XY_Plane"), [""])
sketch12.MapMode = "FlatFace"
sketch12.AttachmentOffset = App.Placement(V(0, 0, -61.36), App.Rotation())
add_polygon(sketch12, [(8, 8), (8, 2), (19, 2), (19, 8)])
sketch12.addConstraint([
    Sketcher.Constraint("Vertical", 0),
    Sketcher.Constraint("Horizontal", 1),
    Sketcher.Constraint("Vertical", 2),
    Sketcher.Constraint("Horizontal", 3),
    Sketcher.Constraint("DistanceY", 0, 2, 0, 1, Q("6 mm")),
    Sketcher.Constraint("DistanceX", 1, 1, 1, 2, Q("11.3 mm")),
    Sketcher.Constraint("DistanceY", -1, 1, 0, 2, Q("2 mm")),
    Sketcher.Constraint("DistanceX", -1, 1, 0, 2, Q("7.61 mm")),
])
pocket9 = body.newObject("PartDesign::Pocket", "Pocket008")
pocket9.Profile = sketch12
pocket9.Length = 16

doc.recompute()
